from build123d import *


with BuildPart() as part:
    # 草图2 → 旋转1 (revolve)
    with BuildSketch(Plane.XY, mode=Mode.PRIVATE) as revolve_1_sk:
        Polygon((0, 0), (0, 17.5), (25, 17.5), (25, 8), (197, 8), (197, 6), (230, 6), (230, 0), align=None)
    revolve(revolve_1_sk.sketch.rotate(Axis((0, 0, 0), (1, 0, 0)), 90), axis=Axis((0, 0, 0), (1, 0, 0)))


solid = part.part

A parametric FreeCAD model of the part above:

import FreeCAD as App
import Part
import Sketcher

V = App.Vector

doc = App.newDocument("Part")
body = doc.addObject("PartDesign::Body", "Body")

# Sketch on XY plane
sketch1 = doc.addObject("Sketcher::SketchObject", "Sketch")
body.addObject(sketch1)
sketch1.AttachmentSupport = (doc.XY_Plane, [""])
sketch1.MapMode = "FlatFace"
sketch1.addGeometry([
    Part.LineSegment(V(0, 17.5, 0), V(0, 0, 0)),  # 0
    Part.LineSegment(V(0, 0, 0), V(230, 0, 0)),  # 1
    Part.LineSegment(V(230, 0, 0), V(230, 6, 0)),  # 2
    Part.LineSegment(V(230, 6, 0), V(197, 6, 0)),  # 3
    Part.LineSegment(V(197, 6, 0), V(197, 8, 0)),  # 4
    Part.LineSegment(V(197, 8, 0), V(25, 8, 0)),  # 5
    Part.LineSegment(V(25, 8, 0), V(25, 17.5, 0)),  # 6
    Part.LineSegment(V(25, 17.5, 0), V(0, 17.5, 0)),  # 7
], False)
sketch1.addConstraint([
    Sketcher.Constraint("Coincident", 0, 2, 1, 1),
    Sketcher.Constraint("Coincident", 1, 2, 2, 1),
    Sketcher.Constraint("Coincident", 2, 2, 3, 1),
    Sketcher.Constraint("Coincident", 3, 2, 4, 1),
    Sketcher.Constraint("Coincident", 4, 2, 5, 1),
    Sketcher.Constraint("Coincident", 5, 2, 6, 1),
    Sketcher.Constraint("Coincident", 6, 2, 7, 1),
    Sketcher.Constraint("Coincident", 7, 2, 0, 1),
    Sketcher.Constraint("Vertical", 0),
    Sketcher.Constraint("Horizontal", 1),
    Sketcher.Constraint("Vertical", 2),
    Sketcher.Constraint("Horizontal", 3),
    Sketcher.Constraint("Vertical", 4),
    Sketcher.Constraint("Horizontal", 5),
    Sketcher.Constraint("Vertical", 6),
    Sketcher.Constraint("Horizontal", 7),
    Sketcher.Constraint("Coincident", 0, 2, -1, 1),
    Sketcher.Constraint("DistanceX", 1, 1, 1, 2, 230.0),
    Sketcher.Constraint("DistanceX", 3, 2, 3, 1, 33.0),
    Sketcher.Constraint("DistanceX", 5, 2, 5, 1, 172.0),
    Sketcher.Constraint("DistanceY", 2, 1, 2, 2, 6.0),
    Sketcher.Constraint("DistanceY", 4, 1, 4, 2, 2.0),
    Sketcher.Constraint("DistanceY", 0, 2, 0, 1, 17.5),
])
revolution = doc.addObject("PartDesign::Revolution", "Revolution")
body.addObject(revolution)
revolution.Profile = sketch1
revolution.ReferenceAxis = (sketch1, ["H_Axis"])
revolution.Angle = 360

doc.recompute()
